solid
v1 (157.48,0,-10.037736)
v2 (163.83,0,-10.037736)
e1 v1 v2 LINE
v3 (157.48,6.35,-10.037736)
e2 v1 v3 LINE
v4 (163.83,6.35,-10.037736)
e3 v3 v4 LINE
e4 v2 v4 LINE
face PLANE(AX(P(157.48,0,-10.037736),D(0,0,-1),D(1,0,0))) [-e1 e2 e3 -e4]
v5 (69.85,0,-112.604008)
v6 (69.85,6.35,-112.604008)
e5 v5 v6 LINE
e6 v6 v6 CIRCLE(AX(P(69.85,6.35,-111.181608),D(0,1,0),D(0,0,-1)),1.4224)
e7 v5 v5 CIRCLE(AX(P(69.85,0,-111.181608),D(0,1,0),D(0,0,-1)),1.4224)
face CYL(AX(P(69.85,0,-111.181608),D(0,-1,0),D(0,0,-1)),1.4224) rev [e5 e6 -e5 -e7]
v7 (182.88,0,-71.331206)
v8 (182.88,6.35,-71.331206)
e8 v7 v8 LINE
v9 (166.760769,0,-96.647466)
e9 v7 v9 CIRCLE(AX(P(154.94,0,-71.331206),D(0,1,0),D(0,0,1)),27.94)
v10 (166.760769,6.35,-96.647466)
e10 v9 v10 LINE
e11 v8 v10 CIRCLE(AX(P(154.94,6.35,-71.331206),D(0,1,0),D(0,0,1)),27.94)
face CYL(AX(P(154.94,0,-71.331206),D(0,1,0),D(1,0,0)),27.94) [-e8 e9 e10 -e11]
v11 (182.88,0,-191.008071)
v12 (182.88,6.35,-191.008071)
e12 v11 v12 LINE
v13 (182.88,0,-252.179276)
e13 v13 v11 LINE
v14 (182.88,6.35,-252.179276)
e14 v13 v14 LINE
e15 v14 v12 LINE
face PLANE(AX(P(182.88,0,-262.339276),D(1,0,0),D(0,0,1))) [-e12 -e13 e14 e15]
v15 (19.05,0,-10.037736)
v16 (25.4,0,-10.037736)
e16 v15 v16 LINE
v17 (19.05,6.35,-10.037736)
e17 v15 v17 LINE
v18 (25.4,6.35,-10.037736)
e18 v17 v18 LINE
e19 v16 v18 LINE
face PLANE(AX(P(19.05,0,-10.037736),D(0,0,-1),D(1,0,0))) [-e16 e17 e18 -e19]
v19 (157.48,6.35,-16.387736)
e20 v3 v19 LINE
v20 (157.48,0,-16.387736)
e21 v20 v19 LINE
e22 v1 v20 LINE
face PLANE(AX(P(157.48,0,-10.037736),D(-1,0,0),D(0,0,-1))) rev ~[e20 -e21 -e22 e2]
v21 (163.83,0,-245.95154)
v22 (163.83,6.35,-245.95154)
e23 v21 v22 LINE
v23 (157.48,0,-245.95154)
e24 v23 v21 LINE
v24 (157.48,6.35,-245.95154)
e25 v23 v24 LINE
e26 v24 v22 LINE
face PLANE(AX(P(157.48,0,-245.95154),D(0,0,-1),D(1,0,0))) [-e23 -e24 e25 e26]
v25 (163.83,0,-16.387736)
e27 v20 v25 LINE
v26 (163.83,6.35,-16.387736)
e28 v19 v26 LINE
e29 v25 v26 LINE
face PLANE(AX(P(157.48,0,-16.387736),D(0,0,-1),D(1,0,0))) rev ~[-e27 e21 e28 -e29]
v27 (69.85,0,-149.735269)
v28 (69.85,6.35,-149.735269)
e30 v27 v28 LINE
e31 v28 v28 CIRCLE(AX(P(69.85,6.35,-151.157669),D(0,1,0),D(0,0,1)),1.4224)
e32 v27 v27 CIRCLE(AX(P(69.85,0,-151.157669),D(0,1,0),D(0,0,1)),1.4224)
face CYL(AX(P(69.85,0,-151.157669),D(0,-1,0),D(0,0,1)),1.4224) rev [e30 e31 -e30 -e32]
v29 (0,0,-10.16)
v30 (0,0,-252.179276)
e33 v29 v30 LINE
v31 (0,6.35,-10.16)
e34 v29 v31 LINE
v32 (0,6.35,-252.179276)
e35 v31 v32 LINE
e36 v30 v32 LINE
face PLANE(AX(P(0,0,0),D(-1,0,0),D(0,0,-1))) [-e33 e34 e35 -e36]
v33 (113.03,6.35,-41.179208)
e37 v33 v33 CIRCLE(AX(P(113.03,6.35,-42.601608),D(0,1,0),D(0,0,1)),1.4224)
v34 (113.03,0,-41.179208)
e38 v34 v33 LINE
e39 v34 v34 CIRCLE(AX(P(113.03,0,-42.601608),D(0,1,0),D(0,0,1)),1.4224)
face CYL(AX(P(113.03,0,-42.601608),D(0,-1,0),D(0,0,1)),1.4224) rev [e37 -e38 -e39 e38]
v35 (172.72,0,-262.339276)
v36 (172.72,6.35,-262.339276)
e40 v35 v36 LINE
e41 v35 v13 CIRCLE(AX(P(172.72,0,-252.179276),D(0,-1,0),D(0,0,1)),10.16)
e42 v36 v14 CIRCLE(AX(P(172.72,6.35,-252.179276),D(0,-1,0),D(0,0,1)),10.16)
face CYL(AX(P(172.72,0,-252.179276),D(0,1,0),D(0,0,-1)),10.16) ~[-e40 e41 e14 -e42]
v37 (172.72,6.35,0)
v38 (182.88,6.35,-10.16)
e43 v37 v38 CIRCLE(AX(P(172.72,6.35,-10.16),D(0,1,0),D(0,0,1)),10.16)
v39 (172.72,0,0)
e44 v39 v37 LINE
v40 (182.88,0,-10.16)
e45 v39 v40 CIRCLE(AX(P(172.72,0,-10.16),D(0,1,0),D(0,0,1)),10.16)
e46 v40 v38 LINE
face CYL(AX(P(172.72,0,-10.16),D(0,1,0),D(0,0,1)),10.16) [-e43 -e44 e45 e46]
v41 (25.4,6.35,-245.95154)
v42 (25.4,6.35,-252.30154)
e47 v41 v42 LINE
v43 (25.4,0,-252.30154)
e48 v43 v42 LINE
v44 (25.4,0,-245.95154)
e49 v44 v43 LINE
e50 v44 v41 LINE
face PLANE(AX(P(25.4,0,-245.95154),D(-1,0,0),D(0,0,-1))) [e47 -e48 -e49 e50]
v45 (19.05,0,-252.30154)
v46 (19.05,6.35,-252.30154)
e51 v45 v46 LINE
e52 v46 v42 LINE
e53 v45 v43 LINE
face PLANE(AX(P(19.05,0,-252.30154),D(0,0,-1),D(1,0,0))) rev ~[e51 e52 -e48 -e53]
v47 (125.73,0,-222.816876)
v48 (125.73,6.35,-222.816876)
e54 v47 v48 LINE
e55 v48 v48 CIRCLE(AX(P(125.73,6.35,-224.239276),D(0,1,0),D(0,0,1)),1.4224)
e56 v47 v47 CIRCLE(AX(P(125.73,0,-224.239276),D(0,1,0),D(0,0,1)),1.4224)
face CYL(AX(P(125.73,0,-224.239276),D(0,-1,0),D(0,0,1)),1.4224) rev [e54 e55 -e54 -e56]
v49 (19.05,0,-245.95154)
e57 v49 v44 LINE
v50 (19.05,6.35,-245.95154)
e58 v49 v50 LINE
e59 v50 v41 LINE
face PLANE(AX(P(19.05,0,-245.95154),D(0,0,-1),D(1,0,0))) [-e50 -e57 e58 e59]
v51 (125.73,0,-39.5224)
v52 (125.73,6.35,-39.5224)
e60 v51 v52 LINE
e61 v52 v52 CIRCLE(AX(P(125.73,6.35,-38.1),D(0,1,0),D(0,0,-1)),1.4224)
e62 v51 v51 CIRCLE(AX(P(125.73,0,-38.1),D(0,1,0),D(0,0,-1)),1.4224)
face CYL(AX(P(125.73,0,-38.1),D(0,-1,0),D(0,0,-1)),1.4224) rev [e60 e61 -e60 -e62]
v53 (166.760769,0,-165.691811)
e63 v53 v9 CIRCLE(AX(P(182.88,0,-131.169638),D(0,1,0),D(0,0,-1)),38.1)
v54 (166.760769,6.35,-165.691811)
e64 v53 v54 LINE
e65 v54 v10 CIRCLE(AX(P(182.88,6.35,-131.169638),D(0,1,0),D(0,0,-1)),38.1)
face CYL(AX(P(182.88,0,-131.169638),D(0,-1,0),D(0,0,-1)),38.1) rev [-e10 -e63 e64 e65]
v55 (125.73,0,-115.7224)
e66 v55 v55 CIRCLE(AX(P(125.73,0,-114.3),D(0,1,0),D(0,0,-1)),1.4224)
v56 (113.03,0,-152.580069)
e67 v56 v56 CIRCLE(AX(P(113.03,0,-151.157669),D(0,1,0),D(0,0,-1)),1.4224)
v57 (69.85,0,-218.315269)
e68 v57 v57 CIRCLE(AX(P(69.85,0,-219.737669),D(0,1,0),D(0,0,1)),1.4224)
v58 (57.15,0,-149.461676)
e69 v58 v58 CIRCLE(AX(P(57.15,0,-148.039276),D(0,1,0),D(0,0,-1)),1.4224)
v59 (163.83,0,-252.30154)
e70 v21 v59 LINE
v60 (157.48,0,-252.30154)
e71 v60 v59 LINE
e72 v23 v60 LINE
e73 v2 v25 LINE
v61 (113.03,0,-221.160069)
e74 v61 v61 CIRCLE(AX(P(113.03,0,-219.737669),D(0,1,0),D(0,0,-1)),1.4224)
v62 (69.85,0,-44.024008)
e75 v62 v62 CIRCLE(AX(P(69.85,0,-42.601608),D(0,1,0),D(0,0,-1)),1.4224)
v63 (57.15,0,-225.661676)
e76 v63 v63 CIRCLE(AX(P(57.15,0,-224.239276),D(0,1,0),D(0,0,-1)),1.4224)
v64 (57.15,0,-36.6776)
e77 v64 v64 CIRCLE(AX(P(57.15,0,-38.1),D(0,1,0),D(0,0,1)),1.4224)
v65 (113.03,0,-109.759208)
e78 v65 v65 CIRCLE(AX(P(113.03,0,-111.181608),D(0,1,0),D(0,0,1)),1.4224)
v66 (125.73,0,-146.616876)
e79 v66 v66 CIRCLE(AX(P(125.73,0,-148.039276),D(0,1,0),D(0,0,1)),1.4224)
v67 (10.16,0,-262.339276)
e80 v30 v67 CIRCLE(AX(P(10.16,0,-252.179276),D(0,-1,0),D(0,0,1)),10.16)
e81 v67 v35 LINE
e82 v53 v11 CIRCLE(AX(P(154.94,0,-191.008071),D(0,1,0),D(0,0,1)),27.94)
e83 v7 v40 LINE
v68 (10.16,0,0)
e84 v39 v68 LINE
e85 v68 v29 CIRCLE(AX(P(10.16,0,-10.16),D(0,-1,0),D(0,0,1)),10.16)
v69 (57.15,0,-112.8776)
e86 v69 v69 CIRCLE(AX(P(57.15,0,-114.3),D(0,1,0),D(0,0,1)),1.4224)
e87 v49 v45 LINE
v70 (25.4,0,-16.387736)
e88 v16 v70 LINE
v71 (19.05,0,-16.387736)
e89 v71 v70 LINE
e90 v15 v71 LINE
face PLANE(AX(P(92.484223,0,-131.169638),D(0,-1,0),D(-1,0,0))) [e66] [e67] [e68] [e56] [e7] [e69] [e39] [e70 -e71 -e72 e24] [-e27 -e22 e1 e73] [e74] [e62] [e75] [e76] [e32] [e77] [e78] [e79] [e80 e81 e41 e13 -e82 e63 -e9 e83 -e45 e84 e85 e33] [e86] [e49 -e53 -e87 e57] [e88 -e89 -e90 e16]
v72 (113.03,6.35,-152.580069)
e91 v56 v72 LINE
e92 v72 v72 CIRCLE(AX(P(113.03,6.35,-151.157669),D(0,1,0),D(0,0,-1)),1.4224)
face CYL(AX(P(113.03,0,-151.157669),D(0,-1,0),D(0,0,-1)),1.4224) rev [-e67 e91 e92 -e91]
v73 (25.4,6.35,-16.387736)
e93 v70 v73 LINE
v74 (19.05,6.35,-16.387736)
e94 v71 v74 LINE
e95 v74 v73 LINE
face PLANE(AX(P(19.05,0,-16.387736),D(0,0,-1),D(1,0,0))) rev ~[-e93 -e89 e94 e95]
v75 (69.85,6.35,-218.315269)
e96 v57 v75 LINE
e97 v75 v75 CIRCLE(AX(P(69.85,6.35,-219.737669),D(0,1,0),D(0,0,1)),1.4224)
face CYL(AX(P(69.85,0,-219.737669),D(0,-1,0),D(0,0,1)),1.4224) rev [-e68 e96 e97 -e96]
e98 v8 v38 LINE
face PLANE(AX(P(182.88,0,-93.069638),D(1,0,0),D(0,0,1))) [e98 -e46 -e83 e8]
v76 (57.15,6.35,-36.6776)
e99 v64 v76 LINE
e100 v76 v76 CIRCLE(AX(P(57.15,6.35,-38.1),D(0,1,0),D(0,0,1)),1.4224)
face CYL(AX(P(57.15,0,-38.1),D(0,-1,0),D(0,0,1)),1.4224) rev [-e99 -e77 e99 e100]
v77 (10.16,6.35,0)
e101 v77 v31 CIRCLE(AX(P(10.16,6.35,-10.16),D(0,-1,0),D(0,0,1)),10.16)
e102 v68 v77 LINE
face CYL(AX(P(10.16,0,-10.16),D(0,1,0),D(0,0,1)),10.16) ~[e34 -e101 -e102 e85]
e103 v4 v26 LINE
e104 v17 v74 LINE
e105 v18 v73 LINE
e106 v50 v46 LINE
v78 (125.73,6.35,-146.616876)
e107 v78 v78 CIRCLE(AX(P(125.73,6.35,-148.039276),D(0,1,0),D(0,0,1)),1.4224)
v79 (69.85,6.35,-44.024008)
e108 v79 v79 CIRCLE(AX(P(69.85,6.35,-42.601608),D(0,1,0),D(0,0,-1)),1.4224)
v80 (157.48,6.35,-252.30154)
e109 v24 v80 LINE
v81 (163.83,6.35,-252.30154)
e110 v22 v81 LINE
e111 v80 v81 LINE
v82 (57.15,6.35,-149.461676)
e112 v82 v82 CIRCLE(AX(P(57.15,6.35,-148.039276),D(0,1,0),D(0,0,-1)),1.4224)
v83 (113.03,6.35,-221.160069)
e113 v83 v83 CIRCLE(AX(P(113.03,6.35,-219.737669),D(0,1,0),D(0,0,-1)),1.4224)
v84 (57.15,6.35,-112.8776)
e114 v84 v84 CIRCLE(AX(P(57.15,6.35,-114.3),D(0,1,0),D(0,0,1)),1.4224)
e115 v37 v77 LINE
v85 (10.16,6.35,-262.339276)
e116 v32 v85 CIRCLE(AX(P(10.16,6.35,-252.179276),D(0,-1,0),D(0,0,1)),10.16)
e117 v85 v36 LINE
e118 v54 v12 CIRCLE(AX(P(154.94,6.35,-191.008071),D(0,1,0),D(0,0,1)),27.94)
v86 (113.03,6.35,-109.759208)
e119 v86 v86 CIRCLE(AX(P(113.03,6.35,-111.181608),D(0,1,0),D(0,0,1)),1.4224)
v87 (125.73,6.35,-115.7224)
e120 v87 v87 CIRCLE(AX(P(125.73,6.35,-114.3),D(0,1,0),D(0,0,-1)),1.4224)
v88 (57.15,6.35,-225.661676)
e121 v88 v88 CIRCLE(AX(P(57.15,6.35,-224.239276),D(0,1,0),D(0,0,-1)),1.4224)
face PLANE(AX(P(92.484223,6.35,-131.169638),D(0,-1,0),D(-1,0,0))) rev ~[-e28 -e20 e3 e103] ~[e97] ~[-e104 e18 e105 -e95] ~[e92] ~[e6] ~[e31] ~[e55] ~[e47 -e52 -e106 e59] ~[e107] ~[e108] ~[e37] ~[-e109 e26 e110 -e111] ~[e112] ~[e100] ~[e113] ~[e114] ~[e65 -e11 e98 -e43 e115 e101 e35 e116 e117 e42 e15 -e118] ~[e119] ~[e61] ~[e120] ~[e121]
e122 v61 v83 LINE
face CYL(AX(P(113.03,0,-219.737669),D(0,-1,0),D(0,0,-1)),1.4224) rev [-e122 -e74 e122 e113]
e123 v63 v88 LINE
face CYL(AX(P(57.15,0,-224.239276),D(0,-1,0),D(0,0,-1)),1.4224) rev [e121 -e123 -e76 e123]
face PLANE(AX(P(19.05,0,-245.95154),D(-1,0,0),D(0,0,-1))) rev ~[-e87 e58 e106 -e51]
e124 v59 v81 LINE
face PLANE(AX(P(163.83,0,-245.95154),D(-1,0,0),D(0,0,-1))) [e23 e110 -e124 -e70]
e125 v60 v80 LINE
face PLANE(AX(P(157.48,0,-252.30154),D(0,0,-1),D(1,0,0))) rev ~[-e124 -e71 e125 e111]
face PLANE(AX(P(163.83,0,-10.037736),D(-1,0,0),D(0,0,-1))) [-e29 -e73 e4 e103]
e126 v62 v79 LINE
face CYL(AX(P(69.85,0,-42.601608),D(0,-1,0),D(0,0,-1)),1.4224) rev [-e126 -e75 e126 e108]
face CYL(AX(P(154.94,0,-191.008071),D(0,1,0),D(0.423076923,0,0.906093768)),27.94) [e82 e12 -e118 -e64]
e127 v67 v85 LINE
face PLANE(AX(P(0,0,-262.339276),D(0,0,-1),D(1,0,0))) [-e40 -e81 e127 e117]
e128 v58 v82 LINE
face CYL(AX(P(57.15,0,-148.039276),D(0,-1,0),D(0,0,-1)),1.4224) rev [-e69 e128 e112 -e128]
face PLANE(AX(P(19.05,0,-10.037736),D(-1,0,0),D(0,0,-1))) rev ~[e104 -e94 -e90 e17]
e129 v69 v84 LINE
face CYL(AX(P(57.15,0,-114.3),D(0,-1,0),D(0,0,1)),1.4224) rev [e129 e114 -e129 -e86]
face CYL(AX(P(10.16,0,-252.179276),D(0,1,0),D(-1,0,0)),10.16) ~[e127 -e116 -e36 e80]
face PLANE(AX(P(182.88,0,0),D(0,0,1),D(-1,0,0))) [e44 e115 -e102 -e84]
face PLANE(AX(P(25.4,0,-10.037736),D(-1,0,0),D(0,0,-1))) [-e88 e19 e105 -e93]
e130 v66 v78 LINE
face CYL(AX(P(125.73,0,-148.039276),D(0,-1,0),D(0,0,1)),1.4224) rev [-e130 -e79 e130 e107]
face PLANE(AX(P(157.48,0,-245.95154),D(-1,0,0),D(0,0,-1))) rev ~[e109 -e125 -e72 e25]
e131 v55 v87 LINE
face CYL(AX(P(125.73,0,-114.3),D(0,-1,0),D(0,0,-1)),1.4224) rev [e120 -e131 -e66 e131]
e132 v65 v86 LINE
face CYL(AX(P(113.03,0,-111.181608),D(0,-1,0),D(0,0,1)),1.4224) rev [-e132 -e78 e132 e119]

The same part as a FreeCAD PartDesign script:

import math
import FreeCAD as App
import Part
import Sketcher

V = App.Vector
Q = App.Units.Quantity


def edges_at(feature, points):
    """Names of the edges that pass closest to the given points."""
    edges = feature.Shape.Edges
    near = lambda p: min(range(len(edges)), key=lambda i: edges[i].distToShape(Part.Vertex(*p))[0])
    return sorted({f"Edge{near(p) + 1}" for p in points})

doc = App.newDocument("Part")
body = doc.addObject("PartDesign::Body", "Body")

# Sketch on XZ plane
sketch1 = body.newObject("Sketcher::SketchObject", "Sketch")
sketch1.AttachmentSupport = (doc.getObject("XZ_Plane"), [""])
sketch1.MapMode = "FlatFace"
sketch1.addGeometry([
    Part.LineSegment(V(0, 0, 0), V(182.88, 0, 0)),  # 0
    Part.LineSegment(V(182.88, 0, 0), V(182.88, -93.069638, 0)),  # 1
    Part.ArcOfCircle(Part.Circle(V(182.88, -131.169638, 0), V(0, 0, 1), 38.1), math.radians(90), math.radians(270)),  # 2
    Part.LineSegment(V(182.88, -169.269638, 0), V(182.88, -262.339276, 0)),  # 3
    Part.LineSegment(V(182.88, -262.339276, 0), V(0, -262.339276, 0)),  # 4
    Part.LineSegment(V(0, -262.339276, 0), V(0, 0, 0)),  # 5
    Part.LineSegment(V(157.48, -10.037736, 0), V(157.48, -16.387736, 0)),  # 6
    Part.LineSegment(V(157.48, -16.387736, 0), V(163.83, -16.387736, 0)),  # 7
    Part.LineSegment(V(163.83, -16.387736, 0), V(163.83, -10.037736, 0)),  # 8
    Part.LineSegment(V(163.83, -10.037736, 0), V(157.48, -10.037736, 0)),  # 9
    Part.Circle(V(125.73, -38.1, 0), V(0, 0, 1), 1.4224),  # 10
    Part.Circle(V(113.03, -42.601608, 0), V(0, 0, 1), 1.4224),  # 11
    Part.Circle(V(125.73, -114.3, 0), V(0, 0, 1), 1.4224),  # 12
    Part.Circle(V(113.03, -111.181608, 0), V(0, 0, 1), 1.4224),  # 13
    Part.Circle(V(57.15, -38.1, 0), V(0, 0, 1), 1.4224),  # 14
    Part.Circle(V(69.85, -42.601608, 0), V(0, 0, 1), 1.4224),  # 15
    Part.LineSegment(V(19.05, -10.037736, 0), V(19.05, -16.387736, 0)),  # 16
    Part.LineSegment(V(19.05, -16.387736, 0), V(25.4, -16.387736, 0)),  # 17
    Part.LineSegment(V(25.4, -16.387736, 0), V(25.4, -10.037736, 0)),  # 18
    Part.LineSegment(V(25.4, -10.037736, 0), V(19.05, -10.037736, 0)),  # 19
    Part.Circle(V(69.85, -111.181608, 0), V(0, 0, 1), 1.4224),  # 20
    Part.Circle(V(57.15, -114.3, 0), V(0, 0, 1), 1.4224),  # 21
    Part.Circle(V(125.73, -148.039276, 0), V(0, 0, 1), 1.4224),  # 22
    Part.Circle(V(113.03, -151.157669, 0), V(0, 0, 1), 1.4224),  # 23
    Part.LineSegment(V(157.48, -245.95154, 0), V(157.48, -252.30154, 0)),  # 24
    Part.LineSegment(V(157.48, -252.30154, 0), V(163.83, -252.30154, 0)),  # 25
    Part.LineSegment(V(163.83, -252.30154, 0), V(163.83, -245.95154, 0)),  # 26
    Part.LineSegment(V(163.83, -245.95154, 0), V(157.48, -245.95154, 0)),  # 27
    Part.Circle(V(113.03, -219.737669, 0), V(0, 0, 1), 1.4224),  # 28
    Part.Circle(V(125.73, -224.239276, 0), V(0, 0, 1), 1.4224),  # 29
    Part.Circle(V(69.85, -151.157669, 0), V(0, 0, 1), 1.4224),  # 30
    Part.Circle(V(57.15, -148.039276, 0), V(0, 0, 1), 1.4224),  # 31
    Part.Circle(V(69.85, -219.737669, 0), V(0, 0, 1), 1.4224),  # 32
    Part.Circle(V(57.15, -224.239276, 0), V(0, 0, 1), 1.4224),  # 33
    Part.LineSegment(V(19.05, -245.95154, 0), V(19.05, -252.30154, 0)),  # 34
    Part.LineSegment(V(19.05, -252.30154, 0), V(25.4, -252.30154, 0)),  # 35
    Part.LineSegment(V(25.4, -252.30154, 0), V(25.4, -245.95154, 0)),  # 36
    Part.LineSegment(V(25.4, -245.95154, 0), V(19.05, -245.95154, 0)),  # 37
], False)
sketch1.addConstraint([
    Sketcher.Constraint("Coincident", 0, 2, 1, 1),
    Sketcher.Constraint("Coincident", 1, 2, 2, 1),
    Sketcher.Constraint("Coincident", 2, 2, 3, 1),
    Sketcher.Constraint("Coincident", 3, 2, 4, 1),
    Sketcher.Constraint("Coincident", 4, 2, 5, 1),
    Sketcher.Constraint("Coincident", 5, 2, 0, 1),
    Sketcher.Constraint("Coincident", 6, 2, 7, 1),
    Sketcher.Constraint("Coincident", 7, 2, 8, 1),
    Sketcher.Constraint("Coincident", 8, 2, 9, 1),
    Sketcher.Constraint("Coincident", 9, 2, 6, 1),
    Sketcher.Constraint("Coincident", 16, 2, 17, 1),
    Sketcher.Constraint("Coincident", 17, 2, 18, 1),
    Sketcher.Constraint("Coincident", 18, 2, 19, 1),
    Sketcher.Constraint("Coincident", 19, 2, 16, 1),
    Sketcher.Constraint("Coincident", 24, 2, 25, 1),
    Sketcher.Constraint("Coincident", 25, 2, 26, 1),
    Sketcher.Constraint("Coincident", 26, 2, 27, 1),
    Sketcher.Constraint("Coincident", 27, 2, 24, 1),
    Sketcher.Constraint("Coincident", 34, 2, 35, 1),
    Sketcher.Constraint("Coincident", 35, 2, 36, 1),
    Sketcher.Constraint("Coincident", 36, 2, 37, 1),
    Sketcher.Constraint("Coincident", 37, 2, 34, 1),
    Sketcher.Constraint("Horizontal", 0),
    Sketcher.Constraint("Vertical", 1),
    Sketcher.Constraint("Vertical", 3),
    Sketcher.Constraint("Horizontal", 4),
    Sketcher.Constraint("Vertical", 5),
    Sketcher.Constraint("Vertical", 6),
    Sketcher.Constraint("Horizontal", 7),
    Sketcher.Constraint("Vertical", 8),
    Sketcher.Constraint("Horizontal", 9),
    Sketcher.Constraint("Vertical", 16),
    Sketcher.Constraint("Horizontal", 17),
    Sketcher.Constraint("Vertical", 18),
    Sketcher.Constraint("Horizontal", 19),
    Sketcher.Constraint("Vertical", 24),
    Sketcher.Constraint("Horizontal", 25),
    Sketcher.Constraint("Vertical", 26),
    Sketcher.Constraint("Horizontal", 27),
    Sketcher.Constraint("Vertical", 34),
    Sketcher.Constraint("Horizontal", 35),
    Sketcher.Constraint("Vertical", 36),
    Sketcher.Constraint("Horizontal", 37),
    Sketcher.Constraint("Coincident", 5, 2, -1, 1),
    Sketcher.Constraint("Equal", 10, 11),
    Sketcher.Constraint("Equal", 11, 12),
    Sketcher.Constraint("Equal", 12, 13),
    Sketcher.Constraint("Equal", 13, 14),
    Sketcher.Constraint("Equal", 14, 15),
    Sketcher.Constraint("Equal", 15, 20),
    Sketcher.Constraint("Equal", 20, 21),
    Sketcher.Constraint("Equal", 21, 22),
    Sketcher.Constraint("Equal", 22, 23),
    Sketcher.Constraint("Equal", 23, 28),
    Sketcher.Constraint("Equal", 28, 29),
    Sketcher.Constraint("Equal", 29, 30),
    Sketcher.Constraint("Equal", 30, 31),
    Sketcher.Constraint("Equal", 31, 32),
    Sketcher.Constraint("Equal", 32, 33),
    Sketcher.Constraint("Horizontal", 10, 3, 14, 3),
    Sketcher.Constraint("Horizontal", 11, 3, 15, 3),
    Sketcher.Constraint("Horizontal", 13, 3, 20, 3),
    Sketcher.Constraint("Horizontal", 12, 3, 21, 3),
    Sketcher.Constraint("Horizontal", 23, 3, 30, 3),
    Sketcher.Constraint("Horizontal", 22, 3, 31, 3),
    Sketcher.Constraint("Horizontal", 28, 3, 32, 3),
    Sketcher.Constraint("Horizontal", 29, 3, 33, 3),
    Sketcher.Constraint("Horizontal", 7, 2, 16, 2),
    Sketcher.Constraint("Horizontal", 9, 2, 18, 2),
    Sketcher.Constraint("Horizontal", 25, 2, 34, 2),
    Sketcher.Constraint("Horizontal", 27, 2, 36, 2),
    Sketcher.Constraint("Vertical", 10, 3, 12, 3),
    Sketcher.Constraint("Vertical", 11, 3, 13, 3),
    Sketcher.Constraint("Vertical", 15, 3, 20, 3),
    Sketcher.Constraint("Vertical", 14, 3, 21, 3),
    Sketcher.Constraint("Vertical", 12, 3, 22, 3),
    Sketcher.Constraint("Vertical", 13, 3, 23, 3),
    Sketcher.Constraint("Vertical", 23, 3, 28, 3),
    Sketcher.Constraint("Vertical", 22, 3, 29, 3),
    Sketcher.Constraint("Vertical", 20, 3, 30, 3),
    Sketcher.Constraint("Vertical", 21, 3, 31, 3),
    Sketcher.Constraint("Vertical", 30, 3, 32, 3),
    Sketcher.Constraint("Vertical", 31, 3, 33, 3),
    Sketcher.Constraint("Vertical", 2, 3, 0, 2),
    Sketcher.Constraint("Vertical", 1, 2, 2, 2),
    Sketcher.Constraint("Vertical", 9, 2, 24, 2),
    Sketcher.Constraint("Vertical", 8, 2, 25, 2),
    Sketcher.Constraint("Vertical", 19, 2, 34, 2),
    Sketcher.Constraint("Vertical", 18, 2, 35, 2),
    Sketcher.Constraint("Equal", 9, 17),
    Sketcher.Constraint("Equal", 1, 3),
    Sketcher.Constraint("Equal", 37, 6),
    Sketcher.Constraint("Equal", 18, 24),
    Sketcher.Constraint("Radius", 2, Q("1.5 in")),
    Sketcher.Constraint("Diameter", 10, Q("0.112 in")),
    Sketcher.Constraint("DistanceX", 0, 1, 0, 2, Q("7.2 in")),
    Sketcher.Constraint("DistanceX", -1, 1, 17, 2, Q("1 in")),
    Sketcher.Constraint("DistanceY", 12, 3, 10, 3, Q("3 in")),
    Sketcher.Constraint("DistanceY", 29, 3, 22, 3, Q("3 in")),
    Sketcher.Constraint("DistanceX", 6, 2, 0, 2, Q("1 in")),
    Sketcher.Constraint("DistanceX", 11, 3, 7, 2, Q("2 in")),
    Sketcher.Constraint("DistanceX", 16, 2, 15, 3, Q("2 in")),
    Sketcher.Constraint("DistanceX", 7, 1, 7, 2, Q("0.25 in")),
    Sketcher.Constraint("DistanceY", 10, 3, -1, 1, Q("1.5 in")),
    Sketcher.Constraint("DistanceX", 11, 3, 10, 3, Q("0.5 in")),
    Sketcher.Constraint("DistanceY", 13, 3, 11, 3, Q("2.7 in")),
    Sketcher.Constraint("DistanceX", 14, 3, 11, 3, Q("2.2 in")),
    Sketcher.Constraint("DistanceY", 28, 3, 23, 3, Q("2.7 in")),
    Sketcher.Constraint("DistanceY", 3, 2, 29, 3, Q("1.5 in")),
    Sketcher.Constraint("DistanceY", 1, 2, 1, 1, Q("93.069638 mm")),
    Sketcher.Constraint("DistanceY", 23, 3, -1, 1, Q("151.157669 mm")),
    Sketcher.Constraint("DistanceY", 24, 2, -1, 1, Q("252.30154 mm")),
    Sketcher.Constraint("DistanceY", 2, 3, 11, 3, Q("88.568031 mm")),
    Sketcher.Constraint("DistanceY", 11, 3, 6, 2, Q("26.213872 mm")),
])
pad1 = body.newObject("PartDesign::Pad", "Pad")
pad1.Profile = sketch1
pad1.Length = Q("0.25 in")
pad1.Reversed = True
doc.recompute()

fillet = body.newObject("PartDesign::Fillet", "Fillet")
fillet.Base = (pad1, edges_at(pad1, [
    (0, 3.175, -262.339),
    (182.88, 3.175, -262.339),
    (182.88, 3.175, 0),
    (0, 3.175, 0),
]))
fillet.Radius = Q("0.4 in")
doc.recompute()

fillet2 = body.newObject("PartDesign::Fillet", "Fillet001")
fillet2.Base = (fillet, edges_at(fillet, [(182.88, 3.175, -169.27), (182.88, 3.175, -93.07)]))
fillet2.Radius = Q("1.1 in")

doc.recompute()
